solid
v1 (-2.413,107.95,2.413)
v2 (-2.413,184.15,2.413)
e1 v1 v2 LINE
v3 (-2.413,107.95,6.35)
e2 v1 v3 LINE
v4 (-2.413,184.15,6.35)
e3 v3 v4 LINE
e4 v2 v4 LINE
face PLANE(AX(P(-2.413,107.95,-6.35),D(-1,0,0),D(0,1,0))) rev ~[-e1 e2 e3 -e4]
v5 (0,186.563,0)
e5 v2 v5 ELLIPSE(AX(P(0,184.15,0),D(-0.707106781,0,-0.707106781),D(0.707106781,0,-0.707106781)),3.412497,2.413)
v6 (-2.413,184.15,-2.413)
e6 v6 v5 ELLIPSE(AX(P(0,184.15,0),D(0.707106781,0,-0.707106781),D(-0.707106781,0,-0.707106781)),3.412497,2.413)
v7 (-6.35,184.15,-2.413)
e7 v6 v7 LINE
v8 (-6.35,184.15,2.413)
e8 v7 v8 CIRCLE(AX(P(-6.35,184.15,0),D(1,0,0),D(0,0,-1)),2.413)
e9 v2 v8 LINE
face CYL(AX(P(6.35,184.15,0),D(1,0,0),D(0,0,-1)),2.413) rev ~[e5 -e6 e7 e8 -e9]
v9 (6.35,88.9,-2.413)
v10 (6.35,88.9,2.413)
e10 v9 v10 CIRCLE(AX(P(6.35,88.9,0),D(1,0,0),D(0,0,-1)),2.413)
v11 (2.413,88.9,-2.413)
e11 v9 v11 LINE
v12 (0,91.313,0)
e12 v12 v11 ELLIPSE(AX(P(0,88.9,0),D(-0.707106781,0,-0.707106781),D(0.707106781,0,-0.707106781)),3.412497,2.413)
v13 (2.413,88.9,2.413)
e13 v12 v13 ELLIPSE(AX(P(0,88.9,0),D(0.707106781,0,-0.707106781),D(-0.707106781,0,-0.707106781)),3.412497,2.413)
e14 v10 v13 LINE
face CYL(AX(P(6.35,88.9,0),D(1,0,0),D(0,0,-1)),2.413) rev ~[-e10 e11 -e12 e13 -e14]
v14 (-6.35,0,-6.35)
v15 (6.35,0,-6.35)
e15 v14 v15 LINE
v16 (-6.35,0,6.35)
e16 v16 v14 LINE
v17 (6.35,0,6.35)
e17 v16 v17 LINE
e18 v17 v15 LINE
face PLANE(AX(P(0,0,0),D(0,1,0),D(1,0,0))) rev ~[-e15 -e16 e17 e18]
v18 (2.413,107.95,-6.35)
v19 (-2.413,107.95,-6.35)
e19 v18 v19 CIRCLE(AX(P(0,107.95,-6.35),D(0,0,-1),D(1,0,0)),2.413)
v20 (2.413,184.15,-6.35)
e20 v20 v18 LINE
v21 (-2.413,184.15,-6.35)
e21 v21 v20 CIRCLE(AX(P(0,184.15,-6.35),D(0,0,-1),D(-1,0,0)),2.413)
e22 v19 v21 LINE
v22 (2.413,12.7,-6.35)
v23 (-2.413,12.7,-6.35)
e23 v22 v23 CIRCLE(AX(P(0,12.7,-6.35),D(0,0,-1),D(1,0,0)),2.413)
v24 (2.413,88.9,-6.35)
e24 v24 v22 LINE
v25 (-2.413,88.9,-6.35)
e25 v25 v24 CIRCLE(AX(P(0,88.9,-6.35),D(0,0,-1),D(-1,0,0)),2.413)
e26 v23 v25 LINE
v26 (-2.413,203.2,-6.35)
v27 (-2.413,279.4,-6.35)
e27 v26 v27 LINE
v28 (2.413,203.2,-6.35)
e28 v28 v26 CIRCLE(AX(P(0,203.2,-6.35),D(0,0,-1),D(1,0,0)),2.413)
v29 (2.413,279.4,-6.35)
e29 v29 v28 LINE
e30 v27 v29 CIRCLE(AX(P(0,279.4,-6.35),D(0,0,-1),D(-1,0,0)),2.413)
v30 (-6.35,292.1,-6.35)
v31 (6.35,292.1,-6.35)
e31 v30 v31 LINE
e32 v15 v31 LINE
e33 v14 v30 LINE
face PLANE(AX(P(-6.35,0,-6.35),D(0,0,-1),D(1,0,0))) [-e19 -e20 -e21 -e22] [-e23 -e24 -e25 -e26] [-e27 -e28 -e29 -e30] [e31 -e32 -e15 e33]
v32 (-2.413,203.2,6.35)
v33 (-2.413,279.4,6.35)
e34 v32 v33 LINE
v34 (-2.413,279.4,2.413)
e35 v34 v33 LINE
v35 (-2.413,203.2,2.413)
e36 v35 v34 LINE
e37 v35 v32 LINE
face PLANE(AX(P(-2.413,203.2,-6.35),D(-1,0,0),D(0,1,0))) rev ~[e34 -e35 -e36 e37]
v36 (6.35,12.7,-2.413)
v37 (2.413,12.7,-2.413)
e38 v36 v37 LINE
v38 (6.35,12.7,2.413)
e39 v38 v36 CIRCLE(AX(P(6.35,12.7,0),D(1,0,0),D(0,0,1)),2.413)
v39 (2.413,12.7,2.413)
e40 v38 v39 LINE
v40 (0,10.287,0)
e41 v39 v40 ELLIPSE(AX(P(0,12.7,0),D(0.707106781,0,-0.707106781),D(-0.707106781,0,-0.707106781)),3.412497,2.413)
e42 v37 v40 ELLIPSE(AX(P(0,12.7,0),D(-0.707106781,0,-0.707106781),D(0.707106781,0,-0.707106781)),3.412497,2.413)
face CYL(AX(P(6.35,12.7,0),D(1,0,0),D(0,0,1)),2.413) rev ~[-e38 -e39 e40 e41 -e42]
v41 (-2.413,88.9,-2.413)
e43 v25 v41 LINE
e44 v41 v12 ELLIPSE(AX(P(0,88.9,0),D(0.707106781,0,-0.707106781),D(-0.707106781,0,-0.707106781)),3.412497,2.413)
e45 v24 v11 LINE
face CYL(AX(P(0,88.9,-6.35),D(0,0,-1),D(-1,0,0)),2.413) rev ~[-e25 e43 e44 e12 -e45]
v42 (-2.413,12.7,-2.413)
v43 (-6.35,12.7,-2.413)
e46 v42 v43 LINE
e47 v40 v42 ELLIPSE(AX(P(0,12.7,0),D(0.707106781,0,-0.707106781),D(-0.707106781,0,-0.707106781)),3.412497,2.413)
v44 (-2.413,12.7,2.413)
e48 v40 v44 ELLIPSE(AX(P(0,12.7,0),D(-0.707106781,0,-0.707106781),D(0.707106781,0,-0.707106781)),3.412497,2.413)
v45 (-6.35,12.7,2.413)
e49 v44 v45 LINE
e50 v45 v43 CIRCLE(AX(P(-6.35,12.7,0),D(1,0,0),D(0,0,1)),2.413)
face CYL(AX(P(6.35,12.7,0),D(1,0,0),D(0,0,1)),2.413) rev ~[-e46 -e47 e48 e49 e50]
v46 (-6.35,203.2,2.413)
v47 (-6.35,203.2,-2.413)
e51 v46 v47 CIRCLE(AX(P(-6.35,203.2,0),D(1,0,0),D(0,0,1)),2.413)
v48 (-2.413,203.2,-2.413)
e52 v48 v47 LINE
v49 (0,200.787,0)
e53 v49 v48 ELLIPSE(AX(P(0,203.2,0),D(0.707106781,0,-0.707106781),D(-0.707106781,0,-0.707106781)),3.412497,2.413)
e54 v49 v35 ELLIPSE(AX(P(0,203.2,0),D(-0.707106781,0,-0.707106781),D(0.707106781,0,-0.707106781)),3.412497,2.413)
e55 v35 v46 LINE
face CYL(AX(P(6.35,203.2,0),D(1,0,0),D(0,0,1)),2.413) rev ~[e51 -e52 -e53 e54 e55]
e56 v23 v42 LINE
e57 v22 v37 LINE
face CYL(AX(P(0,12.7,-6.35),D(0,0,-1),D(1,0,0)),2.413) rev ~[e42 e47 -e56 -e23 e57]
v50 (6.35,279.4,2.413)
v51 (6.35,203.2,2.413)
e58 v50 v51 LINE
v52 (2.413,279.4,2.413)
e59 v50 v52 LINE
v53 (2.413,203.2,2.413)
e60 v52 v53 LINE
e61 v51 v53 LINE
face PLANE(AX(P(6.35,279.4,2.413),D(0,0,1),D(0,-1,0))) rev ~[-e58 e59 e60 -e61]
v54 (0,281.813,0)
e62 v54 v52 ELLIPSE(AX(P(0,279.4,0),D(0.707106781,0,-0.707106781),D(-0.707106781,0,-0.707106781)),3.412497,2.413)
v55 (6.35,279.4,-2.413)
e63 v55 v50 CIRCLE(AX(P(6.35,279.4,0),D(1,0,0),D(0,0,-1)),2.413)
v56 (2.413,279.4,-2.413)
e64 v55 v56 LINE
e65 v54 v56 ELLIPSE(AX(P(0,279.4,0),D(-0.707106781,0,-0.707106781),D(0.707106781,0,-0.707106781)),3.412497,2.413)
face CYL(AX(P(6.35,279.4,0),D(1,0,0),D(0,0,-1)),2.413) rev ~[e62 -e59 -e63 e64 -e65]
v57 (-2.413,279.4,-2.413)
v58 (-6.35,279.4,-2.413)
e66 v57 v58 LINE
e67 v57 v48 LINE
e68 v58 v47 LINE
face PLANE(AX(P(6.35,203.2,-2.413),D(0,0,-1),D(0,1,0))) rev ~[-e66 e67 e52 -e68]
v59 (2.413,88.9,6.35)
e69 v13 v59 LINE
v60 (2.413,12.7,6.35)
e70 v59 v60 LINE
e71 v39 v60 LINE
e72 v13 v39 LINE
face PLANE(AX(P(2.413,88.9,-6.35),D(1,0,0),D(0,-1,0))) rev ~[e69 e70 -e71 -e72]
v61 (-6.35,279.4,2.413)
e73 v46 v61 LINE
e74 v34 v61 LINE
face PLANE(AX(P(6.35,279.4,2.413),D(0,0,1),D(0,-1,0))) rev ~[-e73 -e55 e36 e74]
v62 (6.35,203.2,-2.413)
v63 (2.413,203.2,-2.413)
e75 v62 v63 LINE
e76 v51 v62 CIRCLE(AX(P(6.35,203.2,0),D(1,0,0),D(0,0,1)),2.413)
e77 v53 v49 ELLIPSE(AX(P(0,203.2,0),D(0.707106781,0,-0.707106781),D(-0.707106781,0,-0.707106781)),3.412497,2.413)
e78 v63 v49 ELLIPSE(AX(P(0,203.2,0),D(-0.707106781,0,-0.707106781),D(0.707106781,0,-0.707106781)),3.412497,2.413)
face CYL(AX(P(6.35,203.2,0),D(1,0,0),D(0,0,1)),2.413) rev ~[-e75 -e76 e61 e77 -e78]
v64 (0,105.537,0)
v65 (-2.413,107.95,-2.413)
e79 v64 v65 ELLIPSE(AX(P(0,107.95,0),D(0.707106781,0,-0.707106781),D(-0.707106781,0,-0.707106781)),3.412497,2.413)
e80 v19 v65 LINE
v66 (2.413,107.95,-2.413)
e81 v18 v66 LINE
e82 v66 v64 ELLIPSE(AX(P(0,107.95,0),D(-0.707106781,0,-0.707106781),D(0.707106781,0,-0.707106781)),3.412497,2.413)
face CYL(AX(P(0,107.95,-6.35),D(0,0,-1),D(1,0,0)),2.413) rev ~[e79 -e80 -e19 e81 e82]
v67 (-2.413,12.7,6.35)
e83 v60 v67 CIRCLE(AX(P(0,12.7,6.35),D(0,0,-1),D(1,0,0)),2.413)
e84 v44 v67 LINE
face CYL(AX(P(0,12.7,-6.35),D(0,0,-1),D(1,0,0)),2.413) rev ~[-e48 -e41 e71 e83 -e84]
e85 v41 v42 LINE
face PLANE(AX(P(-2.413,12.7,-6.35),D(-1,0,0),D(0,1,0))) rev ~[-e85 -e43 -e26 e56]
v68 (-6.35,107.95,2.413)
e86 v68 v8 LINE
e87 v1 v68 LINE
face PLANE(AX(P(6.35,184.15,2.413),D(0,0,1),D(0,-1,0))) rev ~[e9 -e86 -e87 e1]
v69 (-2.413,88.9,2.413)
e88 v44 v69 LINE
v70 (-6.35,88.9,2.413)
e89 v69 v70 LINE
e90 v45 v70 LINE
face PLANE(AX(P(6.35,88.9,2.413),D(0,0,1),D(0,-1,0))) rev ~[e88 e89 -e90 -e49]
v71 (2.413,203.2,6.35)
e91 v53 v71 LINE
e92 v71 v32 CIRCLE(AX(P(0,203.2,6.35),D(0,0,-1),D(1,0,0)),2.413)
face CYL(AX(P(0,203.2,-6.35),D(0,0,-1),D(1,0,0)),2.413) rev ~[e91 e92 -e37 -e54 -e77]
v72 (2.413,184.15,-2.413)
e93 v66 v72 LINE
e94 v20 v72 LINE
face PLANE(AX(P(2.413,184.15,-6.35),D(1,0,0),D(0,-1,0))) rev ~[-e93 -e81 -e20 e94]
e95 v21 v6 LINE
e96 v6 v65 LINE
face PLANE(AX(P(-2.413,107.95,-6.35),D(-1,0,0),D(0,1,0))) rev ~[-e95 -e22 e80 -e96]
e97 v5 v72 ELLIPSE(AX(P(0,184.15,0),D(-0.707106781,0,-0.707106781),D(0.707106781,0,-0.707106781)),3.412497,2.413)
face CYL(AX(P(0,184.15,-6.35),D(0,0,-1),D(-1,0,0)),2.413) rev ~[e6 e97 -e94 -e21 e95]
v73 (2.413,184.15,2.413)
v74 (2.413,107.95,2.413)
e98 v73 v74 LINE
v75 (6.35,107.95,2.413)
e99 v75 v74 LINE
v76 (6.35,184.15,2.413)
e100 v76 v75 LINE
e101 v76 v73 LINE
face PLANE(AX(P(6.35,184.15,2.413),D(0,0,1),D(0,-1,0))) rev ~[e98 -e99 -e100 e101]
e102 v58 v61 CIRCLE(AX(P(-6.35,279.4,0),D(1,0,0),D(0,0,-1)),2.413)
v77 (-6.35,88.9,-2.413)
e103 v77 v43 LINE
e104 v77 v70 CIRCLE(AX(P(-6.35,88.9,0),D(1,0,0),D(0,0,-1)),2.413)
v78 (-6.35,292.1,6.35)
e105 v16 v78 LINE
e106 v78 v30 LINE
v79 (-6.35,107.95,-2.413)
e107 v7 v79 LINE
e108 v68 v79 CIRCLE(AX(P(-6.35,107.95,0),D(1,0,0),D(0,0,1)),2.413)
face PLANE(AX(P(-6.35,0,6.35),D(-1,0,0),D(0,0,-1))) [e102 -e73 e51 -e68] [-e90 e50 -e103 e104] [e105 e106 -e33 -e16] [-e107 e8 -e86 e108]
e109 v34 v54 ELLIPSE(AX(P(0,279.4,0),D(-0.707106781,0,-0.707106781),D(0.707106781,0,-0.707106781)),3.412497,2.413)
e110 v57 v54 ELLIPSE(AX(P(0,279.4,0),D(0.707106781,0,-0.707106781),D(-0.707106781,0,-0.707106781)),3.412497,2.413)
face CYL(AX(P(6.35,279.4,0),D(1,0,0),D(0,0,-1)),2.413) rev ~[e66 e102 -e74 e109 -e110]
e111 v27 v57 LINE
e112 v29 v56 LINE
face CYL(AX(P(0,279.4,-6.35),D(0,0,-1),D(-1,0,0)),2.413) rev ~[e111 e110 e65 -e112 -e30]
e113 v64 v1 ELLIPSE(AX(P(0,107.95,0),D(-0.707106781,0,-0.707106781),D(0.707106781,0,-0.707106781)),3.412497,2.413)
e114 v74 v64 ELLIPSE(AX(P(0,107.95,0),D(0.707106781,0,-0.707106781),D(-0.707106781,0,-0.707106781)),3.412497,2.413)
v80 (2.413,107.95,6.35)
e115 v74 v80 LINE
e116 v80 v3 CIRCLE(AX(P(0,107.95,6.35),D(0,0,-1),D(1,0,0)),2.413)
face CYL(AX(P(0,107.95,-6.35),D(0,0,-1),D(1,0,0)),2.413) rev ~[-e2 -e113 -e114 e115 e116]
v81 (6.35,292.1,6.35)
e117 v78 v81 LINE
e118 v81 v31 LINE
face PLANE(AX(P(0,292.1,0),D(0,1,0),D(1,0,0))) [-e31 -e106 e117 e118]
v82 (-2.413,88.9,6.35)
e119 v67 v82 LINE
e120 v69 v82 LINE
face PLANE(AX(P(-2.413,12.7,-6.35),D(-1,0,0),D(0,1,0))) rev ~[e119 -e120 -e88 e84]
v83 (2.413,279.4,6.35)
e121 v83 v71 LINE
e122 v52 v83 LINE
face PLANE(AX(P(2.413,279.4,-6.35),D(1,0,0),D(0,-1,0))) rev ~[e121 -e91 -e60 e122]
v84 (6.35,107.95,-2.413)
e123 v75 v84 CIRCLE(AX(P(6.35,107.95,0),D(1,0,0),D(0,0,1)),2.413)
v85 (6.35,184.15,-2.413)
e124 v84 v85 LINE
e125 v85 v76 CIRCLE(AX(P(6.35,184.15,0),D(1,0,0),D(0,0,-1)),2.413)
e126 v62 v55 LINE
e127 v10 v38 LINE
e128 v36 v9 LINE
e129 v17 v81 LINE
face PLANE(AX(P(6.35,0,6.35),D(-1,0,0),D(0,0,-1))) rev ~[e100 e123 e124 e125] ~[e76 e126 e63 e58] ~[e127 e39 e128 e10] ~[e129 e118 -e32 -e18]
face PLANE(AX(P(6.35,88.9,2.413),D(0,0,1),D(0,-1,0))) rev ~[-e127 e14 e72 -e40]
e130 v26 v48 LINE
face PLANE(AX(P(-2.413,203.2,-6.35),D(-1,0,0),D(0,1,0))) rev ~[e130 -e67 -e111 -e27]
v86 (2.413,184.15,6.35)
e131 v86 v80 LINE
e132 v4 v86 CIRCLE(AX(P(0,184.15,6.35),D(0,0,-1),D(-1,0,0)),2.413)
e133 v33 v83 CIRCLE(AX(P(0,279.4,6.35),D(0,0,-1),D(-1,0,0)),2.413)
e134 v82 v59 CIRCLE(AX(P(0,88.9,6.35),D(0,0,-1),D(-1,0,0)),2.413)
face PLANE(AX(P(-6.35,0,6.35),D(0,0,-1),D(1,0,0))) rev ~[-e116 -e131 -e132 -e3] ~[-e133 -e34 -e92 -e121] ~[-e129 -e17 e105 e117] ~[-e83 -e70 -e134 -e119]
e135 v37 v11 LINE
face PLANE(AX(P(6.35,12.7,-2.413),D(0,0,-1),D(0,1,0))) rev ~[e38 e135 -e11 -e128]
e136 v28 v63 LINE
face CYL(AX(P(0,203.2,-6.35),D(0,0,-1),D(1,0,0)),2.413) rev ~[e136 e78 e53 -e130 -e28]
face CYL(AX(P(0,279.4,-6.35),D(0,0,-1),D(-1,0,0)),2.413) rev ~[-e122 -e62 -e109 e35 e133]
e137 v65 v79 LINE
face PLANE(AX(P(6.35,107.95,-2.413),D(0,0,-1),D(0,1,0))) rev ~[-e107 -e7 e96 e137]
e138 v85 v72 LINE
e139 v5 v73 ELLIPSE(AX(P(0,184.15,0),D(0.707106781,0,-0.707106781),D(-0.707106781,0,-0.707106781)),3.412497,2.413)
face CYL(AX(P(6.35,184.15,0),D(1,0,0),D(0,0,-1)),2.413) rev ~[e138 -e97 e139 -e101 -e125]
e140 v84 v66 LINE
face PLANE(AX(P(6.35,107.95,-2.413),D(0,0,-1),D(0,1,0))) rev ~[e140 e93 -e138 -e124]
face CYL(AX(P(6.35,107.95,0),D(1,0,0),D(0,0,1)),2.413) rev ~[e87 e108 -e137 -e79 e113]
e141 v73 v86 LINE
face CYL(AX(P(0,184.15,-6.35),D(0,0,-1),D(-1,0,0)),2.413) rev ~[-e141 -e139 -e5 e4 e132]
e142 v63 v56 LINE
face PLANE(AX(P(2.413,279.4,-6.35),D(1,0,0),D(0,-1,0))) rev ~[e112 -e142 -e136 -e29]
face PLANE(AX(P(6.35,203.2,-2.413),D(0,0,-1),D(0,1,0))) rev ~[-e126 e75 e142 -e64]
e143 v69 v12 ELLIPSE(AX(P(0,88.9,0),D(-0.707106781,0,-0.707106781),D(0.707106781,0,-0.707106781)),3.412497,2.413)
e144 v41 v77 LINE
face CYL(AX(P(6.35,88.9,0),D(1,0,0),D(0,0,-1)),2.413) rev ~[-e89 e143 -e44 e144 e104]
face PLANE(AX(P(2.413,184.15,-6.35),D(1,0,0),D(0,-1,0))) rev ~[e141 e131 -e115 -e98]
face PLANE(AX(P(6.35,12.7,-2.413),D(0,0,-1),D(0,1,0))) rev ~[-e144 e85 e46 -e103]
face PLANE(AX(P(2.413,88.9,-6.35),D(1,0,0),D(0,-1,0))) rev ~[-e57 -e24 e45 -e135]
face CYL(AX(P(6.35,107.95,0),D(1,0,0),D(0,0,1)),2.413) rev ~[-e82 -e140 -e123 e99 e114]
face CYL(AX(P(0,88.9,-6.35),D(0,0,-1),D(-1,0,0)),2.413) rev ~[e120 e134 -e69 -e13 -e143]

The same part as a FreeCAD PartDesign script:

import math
import FreeCAD as App
import Part
import Sketcher

V = App.Vector
Q = App.Units.Quantity


def add_polygon(sketch, points):
    """Adds a closed chain of lines whose ends are joined by coincident constraints."""
    first, n = sketch.GeometryCount, len(points)
    for a, b in zip(points, points[1:] + points[:1]):
        sketch.addGeometry(Part.LineSegment(App.Vector(*a, 0), App.Vector(*b, 0)), False)
    for i in range(n):
        sketch.addConstraint(Sketcher.Constraint("Coincident", first + i, 2, first + (i + 1) % n, 1))

doc = App.newDocument("Part")
body = doc.addObject("PartDesign::Body", "Body")

# Sketch on XZ plane
sketch1 = body.newObject("Sketcher::SketchObject", "Sketch")
sketch1.AttachmentSupport = (doc.getObject("XZ_Plane"), [""])
sketch1.MapMode = "FlatFace"
add_polygon(sketch1, [(-6, -6), (-6, 6), (6, 6), (6, -6)])  # lines 0-3
sketch1.addConstraint(Sketcher.Constraint("Vertical", 0))
sketch1.addConstraint(Sketcher.Constraint("Horizontal", 1))
sketch1.addConstraint(Sketcher.Constraint("Vertical", 2))
sketch1.addConstraint(Sketcher.Constraint("Horizontal", 3))
sketch1.addConstraint(Sketcher.Constraint("Symmetric", 0, 2, 2, 2, -1, 1))
sketch1.addConstraint(Sketcher.Constraint("Equal", 3, 0))
sketch1.addConstraint(Sketcher.Constraint("DistanceX", 1, 1, 1, 2, Q("0.5 in")))
pad1 = body.newObject("PartDesign::Pad", "Pad")
pad1.Profile = sketch1
pad1.Length = Q("11.5 in")
pad1.Reversed = True

# Sketch on XY plane
sketch2 = body.newObject("Sketcher::SketchObject", "Sketch001")
sketch2.AttachmentSupport = (doc.getObject("XY_Plane"), [""])
sketch2.MapMode = "FlatFace"
sketch2.AttachmentOffset = App.Placement(V(0, 0, -0.25 * 25.4), App.Rotation())
sketch2.addGeometry(Part.LineSegment(V(2.4, 279.4, 0), V(2.4, 203.2, 0)), False)
sketch2.addGeometry(Part.ArcOfCircle(Part.Circle(V(0, 203.2, 0), V(0, 0, 1), 2.4), math.radians(180), math.radians(360)), False)
sketch2.addGeometry(Part.LineSegment(V(-2.4, 203.2, 0), V(-2.4, 279.4, 0)), False)
sketch2.addGeometry(Part.ArcOfCircle(Part.Circle(V(0, 279.4, 0), V(0, 0, 1), 2.4), math.radians(0), math.radians(180)), False)
sketch2.addConstraint(Sketcher.Constraint("Tangent", 0, 2, 1, 2))
sketch2.addConstraint(Sketcher.Constraint("Tangent", 1, 1, 2, 1))
sketch2.addConstraint(Sketcher.Constraint("Tangent", 2, 2, 3, 2))
sketch2.addConstraint(Sketcher.Constraint("Tangent", 3, 1, 0, 1))
sketch2.addConstraint(Sketcher.Constraint("Vertical", 0))
sketch2.addConstraint(Sketcher.Constraint("Vertical", 2))
sketch2.addConstraint(Sketcher.Constraint("PointOnObject", 1, 3, -2))
sketch2.addConstraint(Sketcher.Constraint("DistanceY", 0, 2, 0, 1, Q("3 in")))
sketch2.addConstraint(Sketcher.Constraint("DistanceY", -1, 1, 1, 3, Q("8 in")))
sketch2.addConstraint(Sketcher.Constraint("Radius", 1, Q("0.095 in")))
pocket1 = body.newObject("PartDesign::Pocket", "Pocket")
pocket1.Profile = sketch2
pocket1.Type = "ThroughAll"
pocket1.Reversed = True

# Sketch on YZ plane
sketch3 = body.newObject("Sketcher::SketchObject", "Sketch002")
sketch3.AttachmentSupport = (doc.getObject("YZ_Plane"), [""])
sketch3.MapMode = "FlatFace"
sketch3.AttachmentOffset = App.Placement(V(0, 0, 0.25 * 25.4), App.Rotation())
sketch3.addGeometry(Part.LineSegment(V(279.4, 2.4, 0), V(203.2, 2.4, 0)), False)
sketch3.addGeometry(Part.ArcOfCircle(Part.Circle(V(203.2, 0, 0), V(0, 0, 1), 2.4), math.radians(90), math.radians(270)), False)
sketch3.addGeometry(Part.LineSegment(V(203.2, -2.4, 0), V(279.4, -2.4, 0)), False)
sketch3.addGeometry(Part.ArcOfCircle(Part.Circle(V(279.4, 0, 0), V(0, 0, 1), 2.4), math.radians(-90), math.radians(90)), False)
sketch3.addConstraint(Sketcher.Constraint("Tangent", 0, 2, 1, 1))
sketch3.addConstraint(Sketcher.Constraint("Tangent", 1, 2, 2, 1))
sketch3.addConstraint(Sketcher.Constraint("Tangent", 2, 2, 3, 1))
sketch3.addConstraint(Sketcher.Constraint("Tangent", 3, 2, 0, 1))
sketch3.addConstraint(Sketcher.Constraint("Horizontal", 0))
sketch3.addConstraint(Sketcher.Constraint("Horizontal", 2))
sketch3.addConstraint(Sketcher.Constraint("PointOnObject", 1, 3, -1))
sketch3.addConstraint(Sketcher.Constraint("DistanceX", 0, 2, 0, 1, Q("3 in")))
sketch3.addConstraint(Sketcher.Constraint("DistanceX", -1, 1, 1, 3, Q("8 in")))
sketch3.addConstraint(Sketcher.Constraint("Radius", 1, Q("0.095 in")))
pocket2 = body.newObject("PartDesign::Pocket", "Pocket001")
pocket2.Profile = sketch3
pocket2.Type = "ThroughAll"
doc.recompute()

linearpattern = body.newObject("PartDesign::LinearPattern", "LinearPattern")
linearpattern.Originals = [pocket1, pocket2]
linearpattern.Direction = (doc.getObject("Y_Axis"), [""])
linearpattern.Mode = "offset"
linearpattern.Offset = Q("3.75 in")
linearpattern.Occurrences = 3
linearpattern.Reversed = True
body.Tip = linearpattern

doc.recompute()
